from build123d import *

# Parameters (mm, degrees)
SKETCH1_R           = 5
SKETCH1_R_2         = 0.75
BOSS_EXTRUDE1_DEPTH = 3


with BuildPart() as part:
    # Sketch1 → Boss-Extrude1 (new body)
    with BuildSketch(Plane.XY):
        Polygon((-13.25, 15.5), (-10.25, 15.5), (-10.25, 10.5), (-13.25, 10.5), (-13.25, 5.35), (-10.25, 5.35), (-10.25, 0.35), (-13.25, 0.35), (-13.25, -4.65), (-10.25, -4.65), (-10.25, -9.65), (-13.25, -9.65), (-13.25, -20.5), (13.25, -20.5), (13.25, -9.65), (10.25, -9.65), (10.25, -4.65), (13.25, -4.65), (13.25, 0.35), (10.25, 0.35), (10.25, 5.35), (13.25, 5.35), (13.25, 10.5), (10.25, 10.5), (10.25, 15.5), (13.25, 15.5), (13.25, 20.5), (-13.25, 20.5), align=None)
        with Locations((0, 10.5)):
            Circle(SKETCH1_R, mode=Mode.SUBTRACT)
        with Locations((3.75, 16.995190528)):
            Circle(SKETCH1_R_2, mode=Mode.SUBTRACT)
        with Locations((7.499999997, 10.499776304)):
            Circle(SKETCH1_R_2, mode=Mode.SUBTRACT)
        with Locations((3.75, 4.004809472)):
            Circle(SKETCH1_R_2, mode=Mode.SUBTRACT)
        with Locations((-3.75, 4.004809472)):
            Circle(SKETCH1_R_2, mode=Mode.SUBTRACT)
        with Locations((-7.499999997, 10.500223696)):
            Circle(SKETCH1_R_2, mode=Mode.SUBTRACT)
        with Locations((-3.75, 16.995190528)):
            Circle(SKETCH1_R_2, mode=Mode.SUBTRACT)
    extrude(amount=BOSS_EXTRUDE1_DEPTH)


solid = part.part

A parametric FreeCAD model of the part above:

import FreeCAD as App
import Part
import Sketcher
from FreeCAD import Vector


def add_polygon(sketch, points):
    """Adds a closed chain of lines whose ends are joined by coincident constraints."""
    first, n = sketch.GeometryCount, len(points)
    for a, b in zip(points, points[1:] + points[:1]):
        sketch.addGeometry(Part.LineSegment(App.Vector(*a, 0), App.Vector(*b, 0)), False)
    for i in range(n):
        sketch.addConstraint(Sketcher.Constraint("Coincident", first + i, 2, first + (i + 1) % n, 1))

doc = App.newDocument("Part")
body = doc.addObject("PartDesign::Body", "Body")

# Sketch on XY plane
sketch1 = body.newObject("Sketcher::SketchObject", "Sketch")
sketch1.AttachmentSupport = (doc.getObject("XY_Plane"), [""])
sketch1.MapMode = "FlatFace"
add_polygon(sketch1, [(-13.25, 15.5), (-10.25, 15.5), (-10.25, 10.5), (-13.25, 10.5), (-13.25, 5.35), (-10.25, 5.35), (-10.25, 0.35), (-13.25, 0.35), (-13.25, -4.65), (-10.25, -4.65), (-10.25, -9.65), (-13.25, -9.65), (-13.25, -20.5), (13.25, -20.5), (13.25, -9.65), (10.25, -9.65), (10.25, -4.65), (13.25, -4.65), (13.25, 0.35), (10.25, 0.35), (10.25, 5.35), (13.25, 5.35), (13.25, 10.5), (10.25, 10.5), (10.25, 15.5), (13.25, 15.5), (13.25, 20.5), (-13.25, 20.5)])  # lines 0-27
sketch1.addGeometry(Part.Circle(Vector(-3.75, 4.004809, 0), Vector(0, 0, 1), 0.75), False)  # 28
sketch1.addGeometry(Part.Circle(Vector(3.75, 4.004809, 0), Vector(0, 0, 1), 0.75), False)  # 29
sketch1.addGeometry(Part.Circle(Vector(7.5, 10.499776, 0), Vector(0, 0, 1), 0.75), False)  # 30
sketch1.addGeometry(Part.Circle(Vector(-7.5, 10.500224, 0), Vector(0, 0, 1), 0.75), False)  # 31
sketch1.addGeometry(Part.Circle(Vector(-3.75, 16.995191, 0), Vector(0, 0, 1), 0.75), False)  # 32
sketch1.addGeometry(Part.Circle(Vector(0, 10.5, 0), Vector(0, 0, 1), 5), False)  # 33
sketch1.addGeometry(Part.Circle(Vector(3.75, 16.995191, 0), Vector(0, 0, 1), 0.75), False)  # 34
sketch1.addConstraint([
    Sketcher.Constraint("Horizontal", 0),
    Sketcher.Constraint("Vertical", 1),
    Sketcher.Constraint("Horizontal", 2),
    Sketcher.Constraint("Vertical", 3),
    Sketcher.Constraint("Horizontal", 4),
    Sketcher.Constraint("Vertical", 5),
    Sketcher.Constraint("Horizontal", 6),
    Sketcher.Constraint("Vertical", 7),
    Sketcher.Constraint("Horizontal", 8),
    Sketcher.Constraint("Vertical", 9),
    Sketcher.Constraint("Horizontal", 10),
    Sketcher.Constraint("Vertical", 11),
    Sketcher.Constraint("Horizontal", 12),
    Sketcher.Constraint("Vertical", 13),
    Sketcher.Constraint("Horizontal", 14),
    Sketcher.Constraint("Vertical", 15),
    Sketcher.Constraint("Horizontal", 16),
    Sketcher.Constraint("Vertical", 17),
    Sketcher.Constraint("Horizontal", 18),
    Sketcher.Constraint("Vertical", 19),
    Sketcher.Constraint("Horizontal", 20),
    Sketcher.Constraint("Vertical", 21),
    Sketcher.Constraint("Horizontal", 22),
    Sketcher.Constraint("Vertical", 23),
    Sketcher.Constraint("Horizontal", 24),
    Sketcher.Constraint("Vertical", 25),
    Sketcher.Constraint("Horizontal", 26),
    Sketcher.Constraint("Vertical", 27),
    Sketcher.Constraint("Equal", 28, 29),
    Sketcher.Constraint("Equal", 29, 30),
    Sketcher.Constraint("Equal", 30, 31),
    Sketcher.Constraint("Equal", 31, 32),
    Sketcher.Constraint("Equal", 32, 34),
    Sketcher.Constraint("Symmetric", 11, 2, 25, 2, -1, 1),
    Sketcher.Constraint("Symmetric", 28, 3, 29, 3, -2),
    Sketcher.Constraint("Symmetric", 32, 3, 34, 3, -2),
    Sketcher.Constraint("Symmetric", 10, 2, 13, 2, -2),
    Sketcher.Constraint("Symmetric", 8, 2, 15, 2, -2),
    Sketcher.Constraint("Symmetric", 6, 2, 17, 2, -2),
    Sketcher.Constraint("Symmetric", 4, 2, 19, 2, -2),
    Sketcher.Constraint("Symmetric", 2, 2, 21, 2, -2),
    Sketcher.Constraint("Symmetric", 0, 2, 23, 2, -2),
    Sketcher.Constraint("PointOnObject", 33, 3, -2),
    Sketcher.Constraint("Horizontal", 33, 3, 1, 2),
    Sketcher.Constraint("Vertical", 28, 3, 32, 3),
    Sketcher.Constraint("Vertical", 1, 2, 4, 2),
    Sketcher.Constraint("Vertical", 3, 2, 6, 2),
    Sketcher.Constraint("Vertical", 5, 2, 8, 2),
    Sketcher.Constraint("Vertical", 7, 2, 10, 2),
    Sketcher.Constraint("Vertical", 11, 2, 26, 2),
    Sketcher.Constraint("Equal", 1, 5),
    Sketcher.Constraint("Equal", 5, 7),
    Sketcher.Constraint("Equal", 7, 9),
    Sketcher.Constraint("Equal", 23, 25),
    Sketcher.Constraint("Diameter", 33, 10.0),
    Sketcher.Constraint("Diameter", 28, 1.5),
    Sketcher.Constraint("DistanceX", 0, 1, 0, 2, 3.0),
    Sketcher.Constraint("DistanceY", 1, 2, 1, 1, 5.0),
    Sketcher.Constraint("DistanceX", 12, 1, 12, 2, 26.5),
    Sketcher.Constraint("DistanceX", 31, 3, 30, 3, 15.0),
    Sketcher.Constraint("DistanceX", 0, 2, 34, 3, 14.0),
    Sketcher.Constraint("DistanceY", 3, 2, 3, 1, 5.15),
    Sketcher.Constraint("DistanceY", 11, 2, 11, 1, 10.85),
    Sketcher.Constraint("DistanceX", -1, 1, 30, 3, 7.5),
    Sketcher.Constraint("DistanceY", -1, 1, 28, 3, 4.004809),
    Sketcher.Constraint("DistanceY", -1, 1, 32, 3, 16.995191),
    Sketcher.Constraint("DistanceY", -1, 1, 30, 3, 10.499776),
    Sketcher.Constraint("DistanceY", -1, 1, 31, 3, 10.500224),
])
pad1 = body.newObject("PartDesign::Pad", "Pad")
pad1.Profile = sketch1
pad1.Length = 3

doc.recompute()
